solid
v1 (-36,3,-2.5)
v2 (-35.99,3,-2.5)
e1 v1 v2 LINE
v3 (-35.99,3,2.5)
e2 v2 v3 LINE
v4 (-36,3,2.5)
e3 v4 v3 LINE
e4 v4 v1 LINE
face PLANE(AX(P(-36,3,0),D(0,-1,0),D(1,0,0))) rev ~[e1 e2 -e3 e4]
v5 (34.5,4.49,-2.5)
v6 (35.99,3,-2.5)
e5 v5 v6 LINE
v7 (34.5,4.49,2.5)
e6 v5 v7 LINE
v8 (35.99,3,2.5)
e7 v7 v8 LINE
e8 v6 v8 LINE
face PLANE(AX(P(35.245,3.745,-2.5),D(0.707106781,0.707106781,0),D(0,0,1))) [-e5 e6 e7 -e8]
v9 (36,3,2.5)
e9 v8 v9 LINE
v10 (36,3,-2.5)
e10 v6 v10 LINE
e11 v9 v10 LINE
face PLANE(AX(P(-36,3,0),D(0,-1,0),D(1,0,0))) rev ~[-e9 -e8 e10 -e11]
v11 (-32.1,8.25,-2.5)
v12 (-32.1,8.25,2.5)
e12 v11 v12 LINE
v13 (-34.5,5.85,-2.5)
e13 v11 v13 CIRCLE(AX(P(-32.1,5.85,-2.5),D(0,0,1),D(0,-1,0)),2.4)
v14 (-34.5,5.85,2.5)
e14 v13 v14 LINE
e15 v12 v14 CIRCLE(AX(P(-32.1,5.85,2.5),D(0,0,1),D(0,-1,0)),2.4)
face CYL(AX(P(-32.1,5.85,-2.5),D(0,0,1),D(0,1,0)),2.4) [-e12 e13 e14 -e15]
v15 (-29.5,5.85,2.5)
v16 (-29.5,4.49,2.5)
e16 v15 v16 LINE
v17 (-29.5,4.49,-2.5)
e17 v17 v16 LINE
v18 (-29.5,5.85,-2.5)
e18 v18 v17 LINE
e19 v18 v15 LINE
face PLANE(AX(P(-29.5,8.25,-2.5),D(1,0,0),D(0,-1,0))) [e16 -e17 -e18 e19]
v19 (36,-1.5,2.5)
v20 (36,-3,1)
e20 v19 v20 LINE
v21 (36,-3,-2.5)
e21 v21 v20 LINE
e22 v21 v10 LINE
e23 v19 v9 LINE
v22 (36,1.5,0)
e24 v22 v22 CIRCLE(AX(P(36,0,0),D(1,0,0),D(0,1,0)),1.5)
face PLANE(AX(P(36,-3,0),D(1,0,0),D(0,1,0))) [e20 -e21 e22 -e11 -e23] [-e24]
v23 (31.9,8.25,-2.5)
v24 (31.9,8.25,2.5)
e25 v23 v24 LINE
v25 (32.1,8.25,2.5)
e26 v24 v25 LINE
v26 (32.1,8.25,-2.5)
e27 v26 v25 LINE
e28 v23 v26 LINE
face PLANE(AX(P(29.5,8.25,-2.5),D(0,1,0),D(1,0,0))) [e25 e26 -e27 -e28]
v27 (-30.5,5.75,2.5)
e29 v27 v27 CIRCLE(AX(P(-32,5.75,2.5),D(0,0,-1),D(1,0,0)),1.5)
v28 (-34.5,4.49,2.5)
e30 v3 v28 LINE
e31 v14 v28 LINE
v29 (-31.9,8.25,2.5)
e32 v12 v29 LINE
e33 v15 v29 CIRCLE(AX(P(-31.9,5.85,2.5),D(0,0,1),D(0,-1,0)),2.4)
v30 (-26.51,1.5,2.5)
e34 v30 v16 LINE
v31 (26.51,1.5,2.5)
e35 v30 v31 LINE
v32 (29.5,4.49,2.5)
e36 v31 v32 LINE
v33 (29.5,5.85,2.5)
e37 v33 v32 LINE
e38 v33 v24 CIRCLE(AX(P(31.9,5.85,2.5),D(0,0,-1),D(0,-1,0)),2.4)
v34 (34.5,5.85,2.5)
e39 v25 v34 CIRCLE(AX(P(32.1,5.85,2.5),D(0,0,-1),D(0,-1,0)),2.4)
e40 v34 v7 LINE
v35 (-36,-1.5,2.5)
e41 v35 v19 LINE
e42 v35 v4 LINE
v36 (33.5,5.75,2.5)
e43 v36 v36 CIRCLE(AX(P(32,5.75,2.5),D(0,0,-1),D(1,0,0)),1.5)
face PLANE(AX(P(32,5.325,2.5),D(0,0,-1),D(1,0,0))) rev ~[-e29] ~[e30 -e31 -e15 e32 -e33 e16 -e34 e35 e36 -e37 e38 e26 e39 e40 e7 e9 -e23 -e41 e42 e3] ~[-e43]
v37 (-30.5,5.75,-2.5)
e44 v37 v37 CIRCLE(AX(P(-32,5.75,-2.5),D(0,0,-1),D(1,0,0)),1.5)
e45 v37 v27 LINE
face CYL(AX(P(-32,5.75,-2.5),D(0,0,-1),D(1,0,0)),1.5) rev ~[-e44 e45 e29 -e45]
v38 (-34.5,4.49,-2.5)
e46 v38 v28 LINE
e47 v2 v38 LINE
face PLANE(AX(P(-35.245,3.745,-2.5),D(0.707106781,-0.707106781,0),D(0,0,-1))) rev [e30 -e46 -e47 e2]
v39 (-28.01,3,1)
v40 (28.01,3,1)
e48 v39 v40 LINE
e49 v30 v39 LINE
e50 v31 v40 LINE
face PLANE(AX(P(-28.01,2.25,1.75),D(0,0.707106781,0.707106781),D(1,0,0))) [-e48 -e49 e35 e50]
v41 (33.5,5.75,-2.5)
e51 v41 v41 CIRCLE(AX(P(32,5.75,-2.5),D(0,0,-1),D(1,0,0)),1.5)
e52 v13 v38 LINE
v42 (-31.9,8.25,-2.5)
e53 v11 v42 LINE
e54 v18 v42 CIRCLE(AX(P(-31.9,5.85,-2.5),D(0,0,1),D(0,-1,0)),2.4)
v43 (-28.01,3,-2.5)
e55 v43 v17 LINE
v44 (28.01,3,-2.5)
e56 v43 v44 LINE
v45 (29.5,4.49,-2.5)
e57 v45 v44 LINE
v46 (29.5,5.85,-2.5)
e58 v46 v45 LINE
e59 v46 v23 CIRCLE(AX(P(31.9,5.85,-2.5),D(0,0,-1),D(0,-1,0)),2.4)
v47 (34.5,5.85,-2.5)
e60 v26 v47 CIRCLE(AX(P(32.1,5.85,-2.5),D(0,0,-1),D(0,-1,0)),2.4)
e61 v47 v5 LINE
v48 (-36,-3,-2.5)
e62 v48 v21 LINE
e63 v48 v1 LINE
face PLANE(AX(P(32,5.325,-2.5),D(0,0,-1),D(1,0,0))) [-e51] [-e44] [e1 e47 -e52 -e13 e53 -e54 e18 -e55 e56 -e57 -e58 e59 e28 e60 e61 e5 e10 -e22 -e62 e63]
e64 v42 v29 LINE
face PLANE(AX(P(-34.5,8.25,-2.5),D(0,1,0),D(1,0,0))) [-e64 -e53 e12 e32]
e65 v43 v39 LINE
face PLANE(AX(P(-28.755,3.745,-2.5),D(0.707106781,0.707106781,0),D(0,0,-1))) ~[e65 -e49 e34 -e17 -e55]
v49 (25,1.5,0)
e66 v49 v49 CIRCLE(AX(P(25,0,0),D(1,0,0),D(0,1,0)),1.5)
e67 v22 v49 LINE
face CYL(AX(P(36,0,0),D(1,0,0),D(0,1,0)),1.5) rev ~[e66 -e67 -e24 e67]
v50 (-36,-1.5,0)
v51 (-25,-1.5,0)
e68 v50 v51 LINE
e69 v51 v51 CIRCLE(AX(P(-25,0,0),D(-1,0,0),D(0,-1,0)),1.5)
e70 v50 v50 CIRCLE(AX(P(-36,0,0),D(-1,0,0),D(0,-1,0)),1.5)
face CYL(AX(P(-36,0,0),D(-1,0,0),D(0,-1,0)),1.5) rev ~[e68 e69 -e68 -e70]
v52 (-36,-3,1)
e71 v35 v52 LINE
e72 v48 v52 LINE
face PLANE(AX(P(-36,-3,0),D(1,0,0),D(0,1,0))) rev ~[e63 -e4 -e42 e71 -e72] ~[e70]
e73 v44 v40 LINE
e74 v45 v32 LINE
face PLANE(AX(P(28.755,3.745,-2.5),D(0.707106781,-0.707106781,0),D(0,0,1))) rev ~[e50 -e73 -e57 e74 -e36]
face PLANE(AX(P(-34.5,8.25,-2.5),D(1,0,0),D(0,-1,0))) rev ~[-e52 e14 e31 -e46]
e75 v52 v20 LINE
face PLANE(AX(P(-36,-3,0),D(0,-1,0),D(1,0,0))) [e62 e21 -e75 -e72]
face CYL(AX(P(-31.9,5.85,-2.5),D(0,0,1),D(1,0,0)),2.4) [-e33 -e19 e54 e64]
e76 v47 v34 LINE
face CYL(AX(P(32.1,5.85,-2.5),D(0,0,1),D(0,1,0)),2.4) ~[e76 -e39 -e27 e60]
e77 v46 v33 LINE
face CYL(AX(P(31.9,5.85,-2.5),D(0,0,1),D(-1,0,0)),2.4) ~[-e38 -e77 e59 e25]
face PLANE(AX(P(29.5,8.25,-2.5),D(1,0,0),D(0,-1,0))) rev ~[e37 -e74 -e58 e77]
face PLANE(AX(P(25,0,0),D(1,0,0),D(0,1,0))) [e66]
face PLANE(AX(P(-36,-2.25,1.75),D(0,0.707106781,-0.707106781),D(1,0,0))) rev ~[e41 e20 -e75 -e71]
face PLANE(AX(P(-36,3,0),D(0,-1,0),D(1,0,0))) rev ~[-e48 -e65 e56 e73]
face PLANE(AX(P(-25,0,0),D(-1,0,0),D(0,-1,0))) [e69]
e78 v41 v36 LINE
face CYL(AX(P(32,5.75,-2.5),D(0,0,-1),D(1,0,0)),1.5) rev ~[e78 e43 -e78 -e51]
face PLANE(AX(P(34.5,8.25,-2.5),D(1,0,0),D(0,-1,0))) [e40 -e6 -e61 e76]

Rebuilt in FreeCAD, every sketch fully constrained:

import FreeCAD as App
import Part
import Sketcher
from FreeCAD import Vector


def edges_at(feature, points):
    """Names of the edges that pass closest to the given points."""
    edges = feature.Shape.Edges
    near = lambda p: min(range(len(edges)), key=lambda i: edges[i].distToShape(Part.Vertex(*p))[0])
    return sorted({f"Edge{near(p) + 1}" for p in points})


def add_polygon(sketch, points):
    """Adds a closed chain of lines whose ends are joined by coincident constraints."""
    first, n = sketch.GeometryCount, len(points)
    for a, b in zip(points, points[1:] + points[:1]):
        sketch.addGeometry(Part.LineSegment(App.Vector(*a, 0), App.Vector(*b, 0)), False)
    for i in range(n):
        sketch.addConstraint(Sketcher.Constraint("Coincident", first + i, 2, first + (i + 1) % n, 1))

doc = App.newDocument("Part")
body = doc.addObject("PartDesign::Body", "Body")

sketch1 = body.newObject("Sketcher::SketchObject", "Sketch")
sketch1.AttachmentSupport = (doc.getObject("XY_Plane"), [""])
sketch1.MapMode = "FlatFace"
add_polygon(sketch1, [(-36, 3), (-36, -3), (36, -3), (36, 3)])
sketch1.addConstraint([
    Sketcher.Constraint("Vertical", 0),
    Sketcher.Constraint("Horizontal", 1),
    Sketcher.Constraint("Vertical", 2),
    Sketcher.Constraint("Horizontal", 3),
    Sketcher.Constraint("Symmetric", 0, 2, 2, 2, -1, 1),
    Sketcher.Constraint("DistanceX", 1, 1, 1, 2, 72.0),
    Sketcher.Constraint("DistanceY", 0, 2, 0, 1, 6.0),
])
pad1 = body.newObject("PartDesign::Pad", "Pad")
pad1.Profile = sketch1
pad1.Length = 5
pad1.Midplane = True

sketch2 = body.newObject("Sketcher::SketchObject", "Sketch001")
sketch2.AttachmentSupport = (doc.getObject("YZ_Plane"), [""])
sketch2.MapMode = "FlatFace"
sketch2.AttachmentOffset = App.Placement(Vector(0, 0, -36), App.Rotation())
sketch2.addGeometry(Part.Circle(Vector(0, 0, 0), Vector(0, 0, 1), 1.5), False)
sketch2.addConstraint([
    Sketcher.Constraint("Coincident", 0, 3, -1, 1),
    Sketcher.Constraint("Diameter", 0, 3.0),
])
pocket1 = body.newObject("PartDesign::Pocket", "Pocket")
pocket1.Profile = sketch2
pocket1.Length = 11
pocket1.Reversed = True

sketch3 = body.newObject("Sketcher::SketchObject", "Sketch002")
sketch3.AttachmentSupport = (doc.getObject("YZ_Plane"), [""])
sketch3.MapMode = "FlatFace"
sketch3.AttachmentOffset = App.Placement(Vector(0, 0, 36), App.Rotation())
sketch3.addGeometry(Part.Circle(Vector(0, 0, 0), Vector(0, 0, 1), 1.5), False)
sketch3.addConstraint([
    Sketcher.Constraint("Coincident", 0, 3, -1, 1),
    Sketcher.Constraint("Diameter", 0, 3.0),
])
pocket2 = body.newObject("PartDesign::Pocket", "Pocket001")
pocket2.Profile = sketch3
pocket2.Length = 11

sketch4 = body.newObject("Sketcher::SketchObject", "Sketch003")
sketch4.AttachmentSupport = (doc.getObject("XY_Plane"), [""])
sketch4.MapMode = "FlatFace"
sketch4.AttachmentOffset = App.Placement(Vector(0, 0, -2.5), App.Rotation())
add_polygon(sketch4, [(29.5, 2.4), (29.5, 8.2), (34.5, 8.2), (34.5, 2.4)])
sketch4.addGeometry(Part.Circle(Vector(32, 5.8, 0), Vector(0, 0, 1), 1.5), False)
add_polygon(sketch4, [(-34.5, 2.4), (-34.5, 8.2), (-29.5, 8.2), (-29.5, 2.4)])
sketch4.addGeometry(Part.Circle(Vector(-32, 5.8, 0), Vector(0, 0, 1), 1.5), False)
sketch4.addConstraint([
    Sketcher.Constraint("Vertical", 0),
    Sketcher.Constraint("Horizontal", 1),
    Sketcher.Constraint("Vertical", 2),
    Sketcher.Constraint("Horizontal", 3),
    Sketcher.Constraint("Vertical", 5),
    Sketcher.Constraint("Horizontal", 6),
    Sketcher.Constraint("Vertical", 7),
    Sketcher.Constraint("Horizontal", 8),
    Sketcher.Constraint("Equal", 4, 9),
    Sketcher.Constraint("Symmetric", 4, 3, 9, 3, -2),
    Sketcher.Constraint("Symmetric", 1, 2, 5, 2, -2),
    Sketcher.Constraint("Symmetric", 3, 2, 7, 2, -2),
    Sketcher.Constraint("Diameter", 4, 3.0),
    Sketcher.Constraint("DistanceX", 1, 1, 1, 2, 5.0),
    Sketcher.Constraint("DistanceX", -1, 1, 4, 3, 32.0),
    Sketcher.Constraint("DistanceX", 5, 2, 0, 2, 64.0),
    Sketcher.Constraint("DistanceY", 0, 1, 0, 2, 5.85),
    Sketcher.Constraint("DistanceY", -1, 1, 2, 2, 2.4),
    Sketcher.Constraint("DistanceY", 4, 3, 0, 2, 2.5),
])
pad2 = body.newObject("PartDesign::Pad", "Pad001")
pad2.Profile = sketch4
pad2.Length = 5
doc.recompute()

chamfer = body.newObject("PartDesign::Chamfer", "Chamfer")
chamfer.Base = (pad2, edges_at(pad2, [
    (34.5, 3, 0),
    (29.5, 3, 0),
    (-29.5, 3, 0),
    (-34.5, 3, 0),
]))
chamfer.Size = 1.49
doc.recompute()

fillet = body.newObject("PartDesign::Fillet", "Fillet")
fillet.Base = (chamfer, edges_at(chamfer, [
    (34.5, 8.25, 0),
    (29.5, 8.25, 0),
    (-29.5, 8.25, 0),
    (-34.5, 8.25, 0),
]))
fillet.Radius = 2.4
doc.recompute()

chamfer2 = body.newObject("PartDesign::Chamfer", "Chamfer001")
chamfer2.Base = (fillet, edges_at(fillet, [(0, -3, 2.5), (0, 3, 2.5)]))
chamfer2.Size = 1.5

doc.recompute()
